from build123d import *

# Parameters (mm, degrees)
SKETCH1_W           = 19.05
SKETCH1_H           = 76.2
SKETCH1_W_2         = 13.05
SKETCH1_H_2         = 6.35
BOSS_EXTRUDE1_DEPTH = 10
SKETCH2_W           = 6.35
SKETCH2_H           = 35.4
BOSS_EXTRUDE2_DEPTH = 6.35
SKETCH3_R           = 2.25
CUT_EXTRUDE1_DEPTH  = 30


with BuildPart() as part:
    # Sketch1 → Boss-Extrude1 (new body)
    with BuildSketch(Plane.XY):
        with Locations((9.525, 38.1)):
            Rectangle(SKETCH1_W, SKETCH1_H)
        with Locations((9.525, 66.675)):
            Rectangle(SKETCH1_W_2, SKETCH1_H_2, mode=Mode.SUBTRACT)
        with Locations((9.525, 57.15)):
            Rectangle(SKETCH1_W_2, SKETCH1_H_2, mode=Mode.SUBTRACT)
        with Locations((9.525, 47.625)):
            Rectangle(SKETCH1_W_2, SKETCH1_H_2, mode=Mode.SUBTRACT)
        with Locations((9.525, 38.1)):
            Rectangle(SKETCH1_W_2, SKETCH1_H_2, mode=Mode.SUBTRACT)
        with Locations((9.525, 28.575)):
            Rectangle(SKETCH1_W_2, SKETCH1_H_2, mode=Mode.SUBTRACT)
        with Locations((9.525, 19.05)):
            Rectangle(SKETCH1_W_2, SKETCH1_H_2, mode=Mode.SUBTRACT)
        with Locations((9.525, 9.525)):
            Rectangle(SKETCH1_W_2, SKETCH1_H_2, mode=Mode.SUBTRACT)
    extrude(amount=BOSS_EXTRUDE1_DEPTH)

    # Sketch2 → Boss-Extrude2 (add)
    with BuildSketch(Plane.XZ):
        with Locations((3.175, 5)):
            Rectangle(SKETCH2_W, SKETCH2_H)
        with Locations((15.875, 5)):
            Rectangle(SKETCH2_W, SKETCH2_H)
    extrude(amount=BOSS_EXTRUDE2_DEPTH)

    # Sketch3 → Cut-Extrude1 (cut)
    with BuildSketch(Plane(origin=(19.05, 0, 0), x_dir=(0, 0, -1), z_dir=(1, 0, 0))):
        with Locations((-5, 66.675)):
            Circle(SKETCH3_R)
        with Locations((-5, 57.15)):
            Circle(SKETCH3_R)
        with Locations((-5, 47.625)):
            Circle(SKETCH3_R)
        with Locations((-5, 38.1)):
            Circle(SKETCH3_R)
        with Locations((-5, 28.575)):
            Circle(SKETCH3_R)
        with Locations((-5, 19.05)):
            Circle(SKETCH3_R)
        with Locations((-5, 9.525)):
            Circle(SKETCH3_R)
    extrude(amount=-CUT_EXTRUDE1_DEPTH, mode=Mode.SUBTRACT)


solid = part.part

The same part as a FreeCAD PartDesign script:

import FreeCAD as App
import Part
import Sketcher
Q = App.Units.Quantity

doc = App.newDocument("Part")
body = doc.addObject("PartDesign::Body", "Body")

# Sketch on XY plane
sketch1 = body.newObject("Sketcher::SketchObject", "Sketch")
sketch1.AttachmentSupport = (doc.getObject("XY_Plane"), [""])
sketch1.MapMode = "FlatFace"
sketch1.addGeometry(Part.LineSegment(App.Vector(0, 76.2, 0), App.Vector(0, 0, 0)), False)
sketch1.addGeometry(Part.LineSegment(App.Vector(0, 0, 0), App.Vector(19.05, 0, 0)), False)
sketch1.addGeometry(Part.LineSegment(App.Vector(19.05, 0, 0), App.Vector(19.05, 76.2, 0)), False)
sketch1.addGeometry(Part.LineSegment(App.Vector(19.05, 76.2, 0), App.Vector(0, 76.2, 0)), False)
sketch1.addGeometry(Part.LineSegment(App.Vector(16.05, 6.35, 0), App.Vector(3, 6.35, 0)), False)
sketch1.addGeometry(Part.LineSegment(App.Vector(3, 6.35, 0), App.Vector(3, 12.7, 0)), False)
sketch1.addGeometry(Part.LineSegment(App.Vector(3, 12.7, 0), App.Vector(16.05, 12.7, 0)), False)
sketch1.addGeometry(Part.LineSegment(App.Vector(16.05, 12.7, 0), App.Vector(16.05, 6.35, 0)), False)
sketch1.addGeometry(Part.LineSegment(App.Vector(16.05, 15.875, 0), App.Vector(3, 15.875, 0)), False)
sketch1.addGeometry(Part.LineSegment(App.Vector(3, 15.875, 0), App.Vector(3, 22.225, 0)), False)
sketch1.addGeometry(Part.LineSegment(App.Vector(3, 22.225, 0), App.Vector(16.05, 22.225, 0)), False)
sketch1.addGeometry(Part.LineSegment(App.Vector(16.05, 22.225, 0), App.Vector(16.05, 15.875, 0)), False)
sketch1.addGeometry(Part.LineSegment(App.Vector(16.05, 25.4, 0), App.Vector(3, 25.4, 0)), False)
sketch1.addGeometry(Part.LineSegment(App.Vector(3, 25.4, 0), App.Vector(3, 31.75, 0)), False)
sketch1.addGeometry(Part.LineSegment(App.Vector(3, 31.75, 0), App.Vector(16.05, 31.75, 0)), False)
sketch1.addGeometry(Part.LineSegment(App.Vector(16.05, 31.75, 0), App.Vector(16.05, 25.4, 0)), False)
sketch1.addGeometry(Part.LineSegment(App.Vector(16.05, 34.925, 0), App.Vector(3, 34.925, 0)), False)
sketch1.addGeometry(Part.LineSegment(App.Vector(3, 34.925, 0), App.Vector(3, 41.275, 0)), False)
sketch1.addGeometry(Part.LineSegment(App.Vector(3, 41.275, 0), App.Vector(16.05, 41.275, 0)), False)
sketch1.addGeometry(Part.LineSegment(App.Vector(16.05, 41.275, 0), App.Vector(16.05, 34.925, 0)), False)
sketch1.addGeometry(Part.LineSegment(App.Vector(16.05, 44.45, 0), App.Vector(3, 44.45, 0)), False)
sketch1.addGeometry(Part.LineSegment(App.Vector(3, 44.45, 0), App.Vector(3, 50.8, 0)), False)
sketch1.addGeometry(Part.LineSegment(App.Vector(3, 50.8, 0), App.Vector(16.05, 50.8, 0)), False)
sketch1.addGeometry(Part.LineSegment(App.Vector(16.05, 50.8, 0), App.Vector(16.05, 44.45, 0)), False)
sketch1.addGeometry(Part.LineSegment(App.Vector(16.05, 53.975, 0), App.Vector(3, 53.975, 0)), False)
sketch1.addGeometry(Part.LineSegment(App.Vector(3, 53.975, 0), App.Vector(3, 60.325, 0)), False)
sketch1.addGeometry(Part.LineSegment(App.Vector(3, 60.325, 0), App.Vector(16.05, 60.325, 0)), False)
sketch1.addGeometry(Part.LineSegment(App.Vector(16.05, 60.325, 0), App.Vector(16.05, 53.975, 0)), False)
sketch1.addGeometry(Part.LineSegment(App.Vector(16.05, 63.5, 0), App.Vector(3, 63.5, 0)), False)
sketch1.addGeometry(Part.LineSegment(App.Vector(3, 63.5, 0), App.Vector(3, 69.85, 0)), False)
sketch1.addGeometry(Part.LineSegment(App.Vector(3, 69.85, 0), App.Vector(16.05, 69.85, 0)), False)
sketch1.addGeometry(Part.LineSegment(App.Vector(16.05, 69.85, 0), App.Vector(16.05, 63.5, 0)), False)
sketch1.addConstraint(Sketcher.Constraint("Coincident", 0, 2, 1, 1))
sketch1.addConstraint(Sketcher.Constraint("Coincident", 1, 2, 2, 1))
sketch1.addConstraint(Sketcher.Constraint("Coincident", 2, 2, 3, 1))
sketch1.addConstraint(Sketcher.Constraint("Coincident", 3, 2, 0, 1))
sketch1.addConstraint(Sketcher.Constraint("Coincident", 4, 2, 5, 1))
sketch1.addConstraint(Sketcher.Constraint("Coincident", 5, 2, 6, 1))
sketch1.addConstraint(Sketcher.Constraint("Coincident", 6, 2, 7, 1))
sketch1.addConstraint(Sketcher.Constraint("Coincident", 7, 2, 4, 1))
sketch1.addConstraint(Sketcher.Constraint("Coincident", 8, 2, 9, 1))
sketch1.addConstraint(Sketcher.Constraint("Coincident", 9, 2, 10, 1))
sketch1.addConstraint(Sketcher.Constraint("Coincident", 10, 2, 11, 1))
sketch1.addConstraint(Sketcher.Constraint("Coincident", 11, 2, 8, 1))
sketch1.addConstraint(Sketcher.Constraint("Coincident", 12, 2, 13, 1))
sketch1.addConstraint(Sketcher.Constraint("Coincident", 13, 2, 14, 1))
sketch1.addConstraint(Sketcher.Constraint("Coincident", 14, 2, 15, 1))
sketch1.addConstraint(Sketcher.Constraint("Coincident", 15, 2, 12, 1))
sketch1.addConstraint(Sketcher.Constraint("Coincident", 16, 2, 17, 1))
sketch1.addConstraint(Sketcher.Constraint("Coincident", 17, 2, 18, 1))
sketch1.addConstraint(Sketcher.Constraint("Coincident", 18, 2, 19, 1))
sketch1.addConstraint(Sketcher.Constraint("Coincident", 19, 2, 16, 1))
sketch1.addConstraint(Sketcher.Constraint("Coincident", 20, 2, 21, 1))
sketch1.addConstraint(Sketcher.Constraint("Coincident", 21, 2, 22, 1))
sketch1.addConstraint(Sketcher.Constraint("Coincident", 22, 2, 23, 1))
sketch1.addConstraint(Sketcher.Constraint("Coincident", 23, 2, 20, 1))
sketch1.addConstraint(Sketcher.Constraint("Coincident", 24, 2, 25, 1))
sketch1.addConstraint(Sketcher.Constraint("Coincident", 25, 2, 26, 1))
sketch1.addConstraint(Sketcher.Constraint("Coincident", 26, 2, 27, 1))
sketch1.addConstraint(Sketcher.Constraint("Coincident", 27, 2, 24, 1))
sketch1.addConstraint(Sketcher.Constraint("Coincident", 28, 2, 29, 1))
sketch1.addConstraint(Sketcher.Constraint("Coincident", 29, 2, 30, 1))
sketch1.addConstraint(Sketcher.Constraint("Coincident", 30, 2, 31, 1))
sketch1.addConstraint(Sketcher.Constraint("Coincident", 31, 2, 28, 1))
sketch1.addConstraint(Sketcher.Constraint("Vertical", 0))
sketch1.addConstraint(Sketcher.Constraint("Horizontal", 1))
sketch1.addConstraint(Sketcher.Constraint("Vertical", 2))
sketch1.addConstraint(Sketcher.Constraint("Horizontal", 3))
sketch1.addConstraint(Sketcher.Constraint("Horizontal", 4))
sketch1.addConstraint(Sketcher.Constraint("Vertical", 5))
sketch1.addConstraint(Sketcher.Constraint("Horizontal", 6))
sketch1.addConstraint(Sketcher.Constraint("Vertical", 7))
sketch1.addConstraint(Sketcher.Constraint("Horizontal", 8))
sketch1.addConstraint(Sketcher.Constraint("Vertical", 9))
sketch1.addConstraint(Sketcher.Constraint("Horizontal", 10))
sketch1.addConstraint(Sketcher.Constraint("Vertical", 11))
sketch1.addConstraint(Sketcher.Constraint("Horizontal", 12))
sketch1.addConstraint(Sketcher.Constraint("Vertical", 13))
sketch1.addConstraint(Sketcher.Constraint("Horizontal", 14))
sketch1.addConstraint(Sketcher.Constraint("Vertical", 15))
sketch1.addConstraint(Sketcher.Constraint("Horizontal", 16))
sketch1.addConstraint(Sketcher.Constraint("Vertical", 17))
sketch1.addConstraint(Sketcher.Constraint("Horizontal", 18))
sketch1.addConstraint(Sketcher.Constraint("Vertical", 19))
sketch1.addConstraint(Sketcher.Constraint("Horizontal", 20))
sketch1.addConstraint(Sketcher.Constraint("Vertical", 21))
sketch1.addConstraint(Sketcher.Constraint("Horizontal", 22))
sketch1.addConstraint(Sketcher.Constraint("Vertical", 23))
sketch1.addConstraint(Sketcher.Constraint("Horizontal", 24))
sketch1.addConstraint(Sketcher.Constraint("Vertical", 25))
sketch1.addConstraint(Sketcher.Constraint("Horizontal", 26))
sketch1.addConstraint(Sketcher.Constraint("Vertical", 27))
sketch1.addConstraint(Sketcher.Constraint("Horizontal", 28))
sketch1.addConstraint(Sketcher.Constraint("Vertical", 29))
sketch1.addConstraint(Sketcher.Constraint("Horizontal", 30))
sketch1.addConstraint(Sketcher.Constraint("Vertical", 31))
sketch1.addConstraint(Sketcher.Constraint("Coincident", 0, 2, -1, 1))
sketch1.addConstraint(Sketcher.Constraint("Vertical", 5, 2, 8, 2))
sketch1.addConstraint(Sketcher.Constraint("Vertical", 7, 2, 10, 2))
sketch1.addConstraint(Sketcher.Constraint("Vertical", 9, 2, 12, 2))
sketch1.addConstraint(Sketcher.Constraint("Vertical", 11, 2, 14, 2))
sketch1.addConstraint(Sketcher.Constraint("Vertical", 13, 2, 16, 2))
sketch1.addConstraint(Sketcher.Constraint("Vertical", 15, 2, 18, 2))
sketch1.addConstraint(Sketcher.Constraint("Vertical", 17, 2, 20, 2))
sketch1.addConstraint(Sketcher.Constraint("Vertical", 19, 2, 22, 2))
sketch1.addConstraint(Sketcher.Constraint("Vertical", 21, 2, 24, 2))
sketch1.addConstraint(Sketcher.Constraint("Vertical", 23, 2, 26, 2))
sketch1.addConstraint(Sketcher.Constraint("Vertical", 25, 2, 28, 2))
sketch1.addConstraint(Sketcher.Constraint("Vertical", 27, 2, 30, 2))
sketch1.addConstraint(Sketcher.Constraint("Equal", 7, 9))
sketch1.addConstraint(Sketcher.Constraint("Equal", 11, 13))
sketch1.addConstraint(Sketcher.Constraint("Equal", 15, 17))
sketch1.addConstraint(Sketcher.Constraint("Equal", 19, 21))
sketch1.addConstraint(Sketcher.Constraint("Equal", 23, 25))
sketch1.addConstraint(Sketcher.Constraint("Equal", 27, 29))
sketch1.addConstraint(Sketcher.Constraint("DistanceY", 0, 2, 0, 1, Q("76.2 mm")))
sketch1.addConstraint(Sketcher.Constraint("DistanceX", -1, 1, 4, 2, Q("3 mm")))
sketch1.addConstraint(Sketcher.Constraint("DistanceX", 6, 2, 1, 2, Q("3 mm")))
sketch1.addConstraint(Sketcher.Constraint("DistanceX", 1, 1, 1, 2, Q("19.05 mm")))
sketch1.addConstraint(Sketcher.Constraint("DistanceY", 5, 1, 5, 2, Q("6.35 mm")))
sketch1.addConstraint(Sketcher.Constraint("DistanceY", -1, 1, 5, 2, Q("12.7 mm")))
sketch1.addConstraint(Sketcher.Constraint("DistanceY", -1, 1, 12, 2, Q("25.4 mm")))
sketch1.addConstraint(Sketcher.Constraint("DistanceY", -1, 1, 21, 2, Q("50.8 mm")))
sketch1.addConstraint(Sketcher.Constraint("DistanceY", -1, 1, 28, 2, Q("63.5 mm")))
sketch1.addConstraint(Sketcher.Constraint("DistanceY", 9, 2, 16, 2, Q("12.7 mm")))
sketch1.addConstraint(Sketcher.Constraint("DistanceY", 17, 2, 24, 2, Q("12.7 mm")))
sketch1.addConstraint(Sketcher.Constraint("DistanceY", -1, 1, 8, 2, Q("15.875 mm")))
pad1 = body.newObject("PartDesign::Pad", "Pad")
pad1.Profile = sketch1
pad1.Length = 10

# Sketch on XZ plane
sketch2 = body.newObject("Sketcher::SketchObject", "Sketch001")
sketch2.AttachmentSupport = (doc.getObject("XZ_Plane"), [""])
sketch2.MapMode = "FlatFace"
sketch2.addGeometry(Part.LineSegment(App.Vector(0, 22.7, 0), App.Vector(0, -12.7, 0)), False)
sketch2.addGeometry(Part.LineSegment(App.Vector(0, -12.7, 0), App.Vector(6.35, -12.7, 0)), False)
sketch2.addGeometry(Part.LineSegment(App.Vector(6.35, -12.7, 0), App.Vector(6.35, 22.7, 0)), False)
sketch2.addGeometry(Part.LineSegment(App.Vector(6.35, 22.7, 0), App.Vector(0, 22.7, 0)), False)
sketch2.addGeometry(Part.LineSegment(App.Vector(12.7, 22.7, 0), App.Vector(12.7, -12.7, 0)), False)
sketch2.addGeometry(Part.LineSegment(App.Vector(12.7, -12.7, 0), App.Vector(19.05, -12.7, 0)), False)
sketch2.addGeometry(Part.LineSegment(App.Vector(19.05, -12.7, 0), App.Vector(19.05, 22.7, 0)), False)
sketch2.addGeometry(Part.LineSegment(App.Vector(19.05, 22.7, 0), App.Vector(12.7, 22.7, 0)), False)
sketch2.addConstraint(Sketcher.Constraint("Coincident", 0, 2, 1, 1))
sketch2.addConstraint(Sketcher.Constraint("Coincident", 1, 2, 2, 1))
sketch2.addConstraint(Sketcher.Constraint("Coincident", 2, 2, 3, 1))
sketch2.addConstraint(Sketcher.Constraint("Coincident", 3, 2, 0, 1))
sketch2.addConstraint(Sketcher.Constraint("Coincident", 4, 2, 5, 1))
sketch2.addConstraint(Sketcher.Constraint("Coincident", 5, 2, 6, 1))
sketch2.addConstraint(Sketcher.Constraint("Coincident", 6, 2, 7, 1))
sketch2.addConstraint(Sketcher.Constraint("Coincident", 7, 2, 4, 1))
sketch2.addConstraint(Sketcher.Constraint("Vertical", 0))
sketch2.addConstraint(Sketcher.Constraint("Horizontal", 1))
sketch2.addConstraint(Sketcher.Constraint("Vertical", 2))
sketch2.addConstraint(Sketcher.Constraint("Horizontal", 3))
sketch2.addConstraint(Sketcher.Constraint("Vertical", 4))
sketch2.addConstraint(Sketcher.Constraint("Horizontal", 5))
sketch2.addConstraint(Sketcher.Constraint("Vertical", 6))
sketch2.addConstraint(Sketcher.Constraint("Horizontal", 7))
sketch2.addConstraint(Sketcher.Constraint("PointOnObject", 0, 2, -2))
sketch2.addConstraint(Sketcher.Constraint("Horizontal", 1, 2, 4, 2))
sketch2.addConstraint(Sketcher.Constraint("Horizontal", 3, 2, 6, 2))
sketch2.addConstraint(Sketcher.Constraint("Equal", 3, 5))
sketch2.addConstraint(Sketcher.Constraint("DistanceY", 0, 2, 0, 1, Q("35.4 mm")))
sketch2.addConstraint(Sketcher.Constraint("DistanceX", 1, 1, 1, 2, Q("6.35 mm")))
sketch2.addConstraint(Sketcher.Constraint("DistanceY", 0, 2, -1, 1, Q("12.7 mm")))
sketch2.addConstraint(Sketcher.Constraint("DistanceX", -1, 1, 4, 2, Q("12.7 mm")))
pad2 = body.newObject("PartDesign::Pad", "Pad001")
pad2.Profile = sketch2
pad2.Length = 6.35

# Sketch on YZ plane
sketch3 = body.newObject("Sketcher::SketchObject", "Sketch002")
sketch3.AttachmentSupport = (doc.getObject("YZ_Plane"), [""])
sketch3.MapMode = "FlatFace"
sketch3.AttachmentOffset = App.Placement(App.Vector(0, 0, 19.05), App.Rotation())
sketch3.addGeometry(Part.Circle(App.Vector(66.675, 5, 0), App.Vector(0, 0, 1), 2.25), False)
sketch3.addGeometry(Part.Circle(App.Vector(57.15, 5, 0), App.Vector(0, 0, 1), 2.25), False)
sketch3.addGeometry(Part.Circle(App.Vector(47.625, 5, 0), App.Vector(0, 0, 1), 2.25), False)
sketch3.addGeometry(Part.Circle(App.Vector(38.1, 5, 0), App.Vector(0, 0, 1), 2.25), False)
sketch3.addGeometry(Part.Circle(App.Vector(28.575, 5, 0), App.Vector(0, 0, 1), 2.25), False)
sketch3.addGeometry(Part.Circle(App.Vector(19.05, 5, 0), App.Vector(0, 0, 1), 2.25), False)
sketch3.addGeometry(Part.Circle(App.Vector(9.525, 5, 0), App.Vector(0, 0, 1), 2.25), False)
sketch3.addConstraint(Sketcher.Constraint("Equal", 0, 1))
sketch3.addConstraint(Sketcher.Constraint("Equal", 1, 2))
sketch3.addConstraint(Sketcher.Constraint("Equal", 2, 3))
sketch3.addConstraint(Sketcher.Constraint("Equal", 3, 4))
sketch3.addConstraint(Sketcher.Constraint("Equal", 4, 5))
sketch3.addConstraint(Sketcher.Constraint("Equal", 5, 6))
sketch3.addConstraint(Sketcher.Constraint("Horizontal", 0, 3, 1, 3))
sketch3.addConstraint(Sketcher.Constraint("Horizontal", 1, 3, 2, 3))
sketch3.addConstraint(Sketcher.Constraint("Horizontal", 2, 3, 3, 3))
sketch3.addConstraint(Sketcher.Constraint("Horizontal", 3, 3, 4, 3))
sketch3.addConstraint(Sketcher.Constraint("Horizontal", 4, 3, 5, 3))
sketch3.addConstraint(Sketcher.Constraint("Horizontal", 5, 3, 6, 3))
sketch3.addConstraint(Sketcher.Constraint("Diameter", 0, Q("4.5 mm")))
sketch3.addConstraint(Sketcher.Constraint("DistanceY", -1, 1, 0, 3, Q("5 mm")))
sketch3.addConstraint(Sketcher.Constraint("DistanceX", -1, 1, 3, 3, Q("38.1 mm")))
sketch3.addConstraint(Sketcher.Constraint("DistanceX", 4, 3, 0, 3, Q("38.1 mm")))
sketch3.addConstraint(Sketcher.Constraint("DistanceX", 5, 3, 1, 3, Q("38.1 mm")))
sketch3.addConstraint(Sketcher.Constraint("DistanceX", 6, 3, 2, 3, Q("38.1 mm")))
sketch3.addConstraint(Sketcher.Constraint("DistanceX", -1, 1, 1, 3, Q("57.15 mm")))
sketch3.addConstraint(Sketcher.Constraint("DistanceX", 2, 3, 0, 3, Q("19.05 mm")))
sketch3.addConstraint(Sketcher.Constraint("DistanceX", -1, 1, 0, 3, Q("66.675 mm")))
pocket1 = body.newObject("PartDesign::Pocket", "Pocket")
pocket1.Profile = sketch3
pocket1.Length = 30

doc.recompute()
